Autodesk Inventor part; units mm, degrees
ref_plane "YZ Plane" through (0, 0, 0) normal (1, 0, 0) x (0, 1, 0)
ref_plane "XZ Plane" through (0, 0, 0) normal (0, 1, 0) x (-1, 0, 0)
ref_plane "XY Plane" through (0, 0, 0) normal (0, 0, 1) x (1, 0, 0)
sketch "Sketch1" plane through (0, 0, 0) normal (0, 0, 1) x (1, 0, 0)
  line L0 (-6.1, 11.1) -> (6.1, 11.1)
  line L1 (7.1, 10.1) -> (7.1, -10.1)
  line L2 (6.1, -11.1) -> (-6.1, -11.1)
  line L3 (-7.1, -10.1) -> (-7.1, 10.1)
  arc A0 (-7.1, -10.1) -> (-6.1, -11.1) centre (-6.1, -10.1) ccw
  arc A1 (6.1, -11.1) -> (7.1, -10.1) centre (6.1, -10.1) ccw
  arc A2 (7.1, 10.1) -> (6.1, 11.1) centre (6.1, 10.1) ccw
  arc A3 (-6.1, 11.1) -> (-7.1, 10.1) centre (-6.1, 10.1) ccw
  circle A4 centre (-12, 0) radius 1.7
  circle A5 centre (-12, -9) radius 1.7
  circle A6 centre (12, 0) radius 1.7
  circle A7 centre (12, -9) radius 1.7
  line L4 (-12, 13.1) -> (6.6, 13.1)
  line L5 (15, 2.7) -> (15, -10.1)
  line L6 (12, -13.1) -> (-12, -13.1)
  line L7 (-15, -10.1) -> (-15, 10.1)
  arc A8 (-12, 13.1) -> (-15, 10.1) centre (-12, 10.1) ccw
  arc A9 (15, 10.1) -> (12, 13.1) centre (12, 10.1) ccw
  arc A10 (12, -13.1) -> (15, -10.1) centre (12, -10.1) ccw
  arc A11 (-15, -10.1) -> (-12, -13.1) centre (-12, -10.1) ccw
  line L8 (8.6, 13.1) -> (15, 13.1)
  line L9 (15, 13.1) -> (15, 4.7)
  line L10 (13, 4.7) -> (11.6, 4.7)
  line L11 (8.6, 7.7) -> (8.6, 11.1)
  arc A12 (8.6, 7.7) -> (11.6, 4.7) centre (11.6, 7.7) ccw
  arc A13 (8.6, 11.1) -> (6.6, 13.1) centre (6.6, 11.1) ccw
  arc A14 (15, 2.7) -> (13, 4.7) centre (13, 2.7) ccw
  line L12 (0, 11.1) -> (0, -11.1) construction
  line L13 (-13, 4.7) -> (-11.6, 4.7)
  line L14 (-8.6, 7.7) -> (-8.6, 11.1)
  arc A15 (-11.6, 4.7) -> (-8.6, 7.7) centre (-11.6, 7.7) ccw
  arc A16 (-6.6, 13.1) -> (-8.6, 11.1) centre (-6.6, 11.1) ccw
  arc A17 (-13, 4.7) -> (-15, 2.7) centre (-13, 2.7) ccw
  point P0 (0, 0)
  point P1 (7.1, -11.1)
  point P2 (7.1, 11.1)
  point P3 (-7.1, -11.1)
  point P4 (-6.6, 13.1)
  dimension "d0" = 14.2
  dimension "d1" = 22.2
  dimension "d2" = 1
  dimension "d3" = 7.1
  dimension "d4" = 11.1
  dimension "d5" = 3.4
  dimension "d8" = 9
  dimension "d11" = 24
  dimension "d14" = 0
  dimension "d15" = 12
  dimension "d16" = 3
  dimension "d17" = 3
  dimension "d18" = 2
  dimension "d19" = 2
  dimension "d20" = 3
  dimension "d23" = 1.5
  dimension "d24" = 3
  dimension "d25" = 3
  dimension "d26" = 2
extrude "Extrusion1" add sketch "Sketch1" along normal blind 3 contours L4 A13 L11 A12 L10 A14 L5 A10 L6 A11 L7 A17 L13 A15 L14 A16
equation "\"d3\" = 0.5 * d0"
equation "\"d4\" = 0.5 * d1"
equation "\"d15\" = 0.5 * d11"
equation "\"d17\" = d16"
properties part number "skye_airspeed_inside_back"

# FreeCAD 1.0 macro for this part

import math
import FreeCAD as App
import Part
import Sketcher
from FreeCAD import Vector
Q = App.Units.Quantity

doc = App.newDocument("Part")
body = doc.addObject("PartDesign::Body", "Body")

# Sketch on XY plane
sketch1 = doc.addObject("Sketcher::SketchObject", "Sketch")
body.addObject(sketch1)
sketch1.AttachmentSupport = (doc.XY_Plane, [""])
sketch1.MapMode = "FlatFace"
sketch1.addGeometry([
    Part.LineSegment(Vector(6.6, 13.1, 0), Vector(-6.6, 13.1, 0)),  # 0
    Part.ArcOfCircle(Part.Circle(Vector(-6.6, 11.1, 0), Vector(0, 0, 1), 2), math.radians(90), math.radians(180)),  # 1
    Part.LineSegment(Vector(-8.6, 11.1, 0), Vector(-8.6, 7.7, 0)),  # 2
    Part.ArcOfCircle(Part.Circle(Vector(-11.6, 7.7, 0), Vector(0, 0, 1), 3), math.radians(-90), math.radians(0)),  # 3
    Part.LineSegment(Vector(-11.6, 4.7, 0), Vector(-13, 4.7, 0)),  # 4
    Part.ArcOfCircle(Part.Circle(Vector(-13, 2.7, 0), Vector(0, 0, 1), 2), math.radians(90), math.radians(180)),  # 5
    Part.LineSegment(Vector(-15, 2.7, 0), Vector(-15, -10.1, 0)),  # 6
    Part.ArcOfCircle(Part.Circle(Vector(-12, -10.1, 0), Vector(0, 0, 1), 3), math.radians(180), math.radians(270)),  # 7
    Part.LineSegment(Vector(-12, -13.1, 0), Vector(12, -13.1, 0)),  # 8
    Part.ArcOfCircle(Part.Circle(Vector(12, -10.1, 0), Vector(0, 0, 1), 3), math.radians(-90), math.radians(0)),  # 9
    Part.LineSegment(Vector(15, -10.1, 0), Vector(15, 2.7, 0)),  # 10
    Part.ArcOfCircle(Part.Circle(Vector(13, 2.7, 0), Vector(0, 0, 1), 2), math.radians(0), math.radians(90)),  # 11
    Part.LineSegment(Vector(13, 4.7, 0), Vector(11.6, 4.7, 0)),  # 12
    Part.ArcOfCircle(Part.Circle(Vector(11.6, 7.7, 0), Vector(0, 0, 1), 3), math.radians(180), math.radians(270)),  # 13
    Part.LineSegment(Vector(8.6, 7.7, 0), Vector(8.6, 11.1, 0)),  # 14
    Part.ArcOfCircle(Part.Circle(Vector(6.6, 11.1, 0), Vector(0, 0, 1), 2), math.radians(0), math.radians(90)),  # 15
    Part.Circle(Vector(-12, -9, 0), Vector(0, 0, 1), 1.7),  # 16
    Part.Circle(Vector(12, -9, 0), Vector(0, 0, 1), 1.7),  # 17
    Part.Circle(Vector(-12, 0, 0), Vector(0, 0, 1), 1.7),  # 18
    Part.ArcOfCircle(Part.Circle(Vector(-6.1, 10.1, 0), Vector(0, 0, 1), 1), math.radians(90), math.radians(180)),  # 19
    Part.LineSegment(Vector(-6.1, 11.1, 0), Vector(6.1, 11.1, 0)),  # 20
    Part.ArcOfCircle(Part.Circle(Vector(6.1, 10.1, 0), Vector(0, 0, 1), 1), math.radians(0), math.radians(90)),  # 21
    Part.LineSegment(Vector(7.1, 10.1, 0), Vector(7.1, -10.1, 0)),  # 22
    Part.ArcOfCircle(Part.Circle(Vector(6.1, -10.1, 0), Vector(0, 0, 1), 1), math.radians(-90), math.radians(0)),  # 23
    Part.LineSegment(Vector(6.1, -11.1, 0), Vector(-6.1, -11.1, 0)),  # 24
    Part.ArcOfCircle(Part.Circle(Vector(-6.1, -10.1, 0), Vector(0, 0, 1), 1), math.radians(180), math.radians(270)),  # 25
    Part.LineSegment(Vector(-7.1, -10.1, 0), Vector(-7.1, 10.1, 0)),  # 26
    Part.Circle(Vector(12, 0, 0), Vector(0, 0, 1), 1.7),  # 27
], False)
sketch1.addConstraint([
    Sketcher.Constraint("Tangent", 0, 2, 1, 1),
    Sketcher.Constraint("Tangent", 1, 2, 2, 1),
    Sketcher.Constraint("Tangent", 2, 2, 3, 2),
    Sketcher.Constraint("Tangent", 3, 1, 4, 1),
    Sketcher.Constraint("Tangent", 4, 2, 5, 1),
    Sketcher.Constraint("Tangent", 5, 2, 6, 1),
    Sketcher.Constraint("Tangent", 6, 2, 7, 1),
    Sketcher.Constraint("Tangent", 7, 2, 8, 1),
    Sketcher.Constraint("Tangent", 8, 2, 9, 1),
    Sketcher.Constraint("Tangent", 9, 2, 10, 1),
    Sketcher.Constraint("Tangent", 10, 2, 11, 1),
    Sketcher.Constraint("Tangent", 11, 2, 12, 1),
    Sketcher.Constraint("Tangent", 12, 2, 13, 2),
    Sketcher.Constraint("Tangent", 13, 1, 14, 1),
    Sketcher.Constraint("Tangent", 14, 2, 15, 1),
    Sketcher.Constraint("Tangent", 15, 2, 0, 1),
    Sketcher.Constraint("Tangent", 19, 1, 20, 1),
    Sketcher.Constraint("Tangent", 20, 2, 21, 2),
    Sketcher.Constraint("Tangent", 21, 1, 22, 1),
    Sketcher.Constraint("Tangent", 22, 2, 23, 2),
    Sketcher.Constraint("Tangent", 23, 1, 24, 1),
    Sketcher.Constraint("Tangent", 24, 2, 25, 2),
    Sketcher.Constraint("Tangent", 25, 1, 26, 1),
    Sketcher.Constraint("Tangent", 26, 2, 19, 2),
    Sketcher.Constraint("Horizontal", 0),
    Sketcher.Constraint("Vertical", 2),
    Sketcher.Constraint("Horizontal", 4),
    Sketcher.Constraint("Vertical", 6),
    Sketcher.Constraint("Horizontal", 8),
    Sketcher.Constraint("Vertical", 10),
    Sketcher.Constraint("Horizontal", 12),
    Sketcher.Constraint("Vertical", 14),
    Sketcher.Constraint("Horizontal", 20),
    Sketcher.Constraint("Vertical", 22),
    Sketcher.Constraint("Horizontal", 24),
    Sketcher.Constraint("Vertical", 26),
    Sketcher.Constraint("Equal", 1, 5),
    Sketcher.Constraint("Equal", 3, 7),
    Sketcher.Constraint("Equal", 7, 9),
    Sketcher.Constraint("Equal", 5, 11),
    Sketcher.Constraint("Equal", 9, 13),
    Sketcher.Constraint("Equal", 11, 15),
    Sketcher.Constraint("Equal", 16, 17),
    Sketcher.Constraint("Equal", 17, 18),
    Sketcher.Constraint("Equal", 19, 21),
    Sketcher.Constraint("Equal", 21, 23),
    Sketcher.Constraint("Equal", 23, 25),
    Sketcher.Constraint("Equal", 18, 27),
    Sketcher.Constraint("Symmetric", 19, 3, 23, 3, -1, 1),
    Sketcher.Constraint("Symmetric", 18, 3, 27, 3, -1, 1),
    Sketcher.Constraint("Symmetric", 5, 3, 11, 3, -2),
    Sketcher.Constraint("Symmetric", 16, 3, 17, 3, -2),
    Sketcher.Constraint("PointOnObject", 18, 3, -1),
    Sketcher.Constraint("Horizontal", 9, 3, 23, 3),
    Sketcher.Constraint("Horizontal", 14, 2, 19, 1),
    Sketcher.Constraint("Vertical", 7, 3, 16, 3),
    Sketcher.Constraint("Vertical", 16, 3, 18, 3),
    Sketcher.Constraint("Equal", 4, 12),
    Sketcher.Constraint("Radius", 1, Q("2 mm")),
    Sketcher.Constraint("Radius", 3, Q("3 mm")),
    Sketcher.Constraint("Radius", 19, Q("1 mm")),
    Sketcher.Constraint("Diameter", 16, Q("3.4 mm")),
    Sketcher.Constraint("DistanceX", 8, 1, 8, 2, Q("24 mm")),
    Sketcher.Constraint("DistanceY", 2, 2, 2, 1, Q("3.4 mm")),
    Sketcher.Constraint("DistanceY", 16, 3, -1, 1, Q("9 mm")),
    Sketcher.Constraint("DistanceY", -1, 1, 1, 3, Q("11.1 mm")),
    Sketcher.Constraint("DistanceX", -1, 1, 21, 1, Q("7.1 mm")),
    Sketcher.Constraint("DistanceX", 5, 2, 3, 1, Q("3.4 mm")),
])
pad1 = doc.addObject("PartDesign::Pad", "Pad")
body.addObject(pad1)
pad1.Profile = sketch1
pad1.Length = 3

doc.recompute()
